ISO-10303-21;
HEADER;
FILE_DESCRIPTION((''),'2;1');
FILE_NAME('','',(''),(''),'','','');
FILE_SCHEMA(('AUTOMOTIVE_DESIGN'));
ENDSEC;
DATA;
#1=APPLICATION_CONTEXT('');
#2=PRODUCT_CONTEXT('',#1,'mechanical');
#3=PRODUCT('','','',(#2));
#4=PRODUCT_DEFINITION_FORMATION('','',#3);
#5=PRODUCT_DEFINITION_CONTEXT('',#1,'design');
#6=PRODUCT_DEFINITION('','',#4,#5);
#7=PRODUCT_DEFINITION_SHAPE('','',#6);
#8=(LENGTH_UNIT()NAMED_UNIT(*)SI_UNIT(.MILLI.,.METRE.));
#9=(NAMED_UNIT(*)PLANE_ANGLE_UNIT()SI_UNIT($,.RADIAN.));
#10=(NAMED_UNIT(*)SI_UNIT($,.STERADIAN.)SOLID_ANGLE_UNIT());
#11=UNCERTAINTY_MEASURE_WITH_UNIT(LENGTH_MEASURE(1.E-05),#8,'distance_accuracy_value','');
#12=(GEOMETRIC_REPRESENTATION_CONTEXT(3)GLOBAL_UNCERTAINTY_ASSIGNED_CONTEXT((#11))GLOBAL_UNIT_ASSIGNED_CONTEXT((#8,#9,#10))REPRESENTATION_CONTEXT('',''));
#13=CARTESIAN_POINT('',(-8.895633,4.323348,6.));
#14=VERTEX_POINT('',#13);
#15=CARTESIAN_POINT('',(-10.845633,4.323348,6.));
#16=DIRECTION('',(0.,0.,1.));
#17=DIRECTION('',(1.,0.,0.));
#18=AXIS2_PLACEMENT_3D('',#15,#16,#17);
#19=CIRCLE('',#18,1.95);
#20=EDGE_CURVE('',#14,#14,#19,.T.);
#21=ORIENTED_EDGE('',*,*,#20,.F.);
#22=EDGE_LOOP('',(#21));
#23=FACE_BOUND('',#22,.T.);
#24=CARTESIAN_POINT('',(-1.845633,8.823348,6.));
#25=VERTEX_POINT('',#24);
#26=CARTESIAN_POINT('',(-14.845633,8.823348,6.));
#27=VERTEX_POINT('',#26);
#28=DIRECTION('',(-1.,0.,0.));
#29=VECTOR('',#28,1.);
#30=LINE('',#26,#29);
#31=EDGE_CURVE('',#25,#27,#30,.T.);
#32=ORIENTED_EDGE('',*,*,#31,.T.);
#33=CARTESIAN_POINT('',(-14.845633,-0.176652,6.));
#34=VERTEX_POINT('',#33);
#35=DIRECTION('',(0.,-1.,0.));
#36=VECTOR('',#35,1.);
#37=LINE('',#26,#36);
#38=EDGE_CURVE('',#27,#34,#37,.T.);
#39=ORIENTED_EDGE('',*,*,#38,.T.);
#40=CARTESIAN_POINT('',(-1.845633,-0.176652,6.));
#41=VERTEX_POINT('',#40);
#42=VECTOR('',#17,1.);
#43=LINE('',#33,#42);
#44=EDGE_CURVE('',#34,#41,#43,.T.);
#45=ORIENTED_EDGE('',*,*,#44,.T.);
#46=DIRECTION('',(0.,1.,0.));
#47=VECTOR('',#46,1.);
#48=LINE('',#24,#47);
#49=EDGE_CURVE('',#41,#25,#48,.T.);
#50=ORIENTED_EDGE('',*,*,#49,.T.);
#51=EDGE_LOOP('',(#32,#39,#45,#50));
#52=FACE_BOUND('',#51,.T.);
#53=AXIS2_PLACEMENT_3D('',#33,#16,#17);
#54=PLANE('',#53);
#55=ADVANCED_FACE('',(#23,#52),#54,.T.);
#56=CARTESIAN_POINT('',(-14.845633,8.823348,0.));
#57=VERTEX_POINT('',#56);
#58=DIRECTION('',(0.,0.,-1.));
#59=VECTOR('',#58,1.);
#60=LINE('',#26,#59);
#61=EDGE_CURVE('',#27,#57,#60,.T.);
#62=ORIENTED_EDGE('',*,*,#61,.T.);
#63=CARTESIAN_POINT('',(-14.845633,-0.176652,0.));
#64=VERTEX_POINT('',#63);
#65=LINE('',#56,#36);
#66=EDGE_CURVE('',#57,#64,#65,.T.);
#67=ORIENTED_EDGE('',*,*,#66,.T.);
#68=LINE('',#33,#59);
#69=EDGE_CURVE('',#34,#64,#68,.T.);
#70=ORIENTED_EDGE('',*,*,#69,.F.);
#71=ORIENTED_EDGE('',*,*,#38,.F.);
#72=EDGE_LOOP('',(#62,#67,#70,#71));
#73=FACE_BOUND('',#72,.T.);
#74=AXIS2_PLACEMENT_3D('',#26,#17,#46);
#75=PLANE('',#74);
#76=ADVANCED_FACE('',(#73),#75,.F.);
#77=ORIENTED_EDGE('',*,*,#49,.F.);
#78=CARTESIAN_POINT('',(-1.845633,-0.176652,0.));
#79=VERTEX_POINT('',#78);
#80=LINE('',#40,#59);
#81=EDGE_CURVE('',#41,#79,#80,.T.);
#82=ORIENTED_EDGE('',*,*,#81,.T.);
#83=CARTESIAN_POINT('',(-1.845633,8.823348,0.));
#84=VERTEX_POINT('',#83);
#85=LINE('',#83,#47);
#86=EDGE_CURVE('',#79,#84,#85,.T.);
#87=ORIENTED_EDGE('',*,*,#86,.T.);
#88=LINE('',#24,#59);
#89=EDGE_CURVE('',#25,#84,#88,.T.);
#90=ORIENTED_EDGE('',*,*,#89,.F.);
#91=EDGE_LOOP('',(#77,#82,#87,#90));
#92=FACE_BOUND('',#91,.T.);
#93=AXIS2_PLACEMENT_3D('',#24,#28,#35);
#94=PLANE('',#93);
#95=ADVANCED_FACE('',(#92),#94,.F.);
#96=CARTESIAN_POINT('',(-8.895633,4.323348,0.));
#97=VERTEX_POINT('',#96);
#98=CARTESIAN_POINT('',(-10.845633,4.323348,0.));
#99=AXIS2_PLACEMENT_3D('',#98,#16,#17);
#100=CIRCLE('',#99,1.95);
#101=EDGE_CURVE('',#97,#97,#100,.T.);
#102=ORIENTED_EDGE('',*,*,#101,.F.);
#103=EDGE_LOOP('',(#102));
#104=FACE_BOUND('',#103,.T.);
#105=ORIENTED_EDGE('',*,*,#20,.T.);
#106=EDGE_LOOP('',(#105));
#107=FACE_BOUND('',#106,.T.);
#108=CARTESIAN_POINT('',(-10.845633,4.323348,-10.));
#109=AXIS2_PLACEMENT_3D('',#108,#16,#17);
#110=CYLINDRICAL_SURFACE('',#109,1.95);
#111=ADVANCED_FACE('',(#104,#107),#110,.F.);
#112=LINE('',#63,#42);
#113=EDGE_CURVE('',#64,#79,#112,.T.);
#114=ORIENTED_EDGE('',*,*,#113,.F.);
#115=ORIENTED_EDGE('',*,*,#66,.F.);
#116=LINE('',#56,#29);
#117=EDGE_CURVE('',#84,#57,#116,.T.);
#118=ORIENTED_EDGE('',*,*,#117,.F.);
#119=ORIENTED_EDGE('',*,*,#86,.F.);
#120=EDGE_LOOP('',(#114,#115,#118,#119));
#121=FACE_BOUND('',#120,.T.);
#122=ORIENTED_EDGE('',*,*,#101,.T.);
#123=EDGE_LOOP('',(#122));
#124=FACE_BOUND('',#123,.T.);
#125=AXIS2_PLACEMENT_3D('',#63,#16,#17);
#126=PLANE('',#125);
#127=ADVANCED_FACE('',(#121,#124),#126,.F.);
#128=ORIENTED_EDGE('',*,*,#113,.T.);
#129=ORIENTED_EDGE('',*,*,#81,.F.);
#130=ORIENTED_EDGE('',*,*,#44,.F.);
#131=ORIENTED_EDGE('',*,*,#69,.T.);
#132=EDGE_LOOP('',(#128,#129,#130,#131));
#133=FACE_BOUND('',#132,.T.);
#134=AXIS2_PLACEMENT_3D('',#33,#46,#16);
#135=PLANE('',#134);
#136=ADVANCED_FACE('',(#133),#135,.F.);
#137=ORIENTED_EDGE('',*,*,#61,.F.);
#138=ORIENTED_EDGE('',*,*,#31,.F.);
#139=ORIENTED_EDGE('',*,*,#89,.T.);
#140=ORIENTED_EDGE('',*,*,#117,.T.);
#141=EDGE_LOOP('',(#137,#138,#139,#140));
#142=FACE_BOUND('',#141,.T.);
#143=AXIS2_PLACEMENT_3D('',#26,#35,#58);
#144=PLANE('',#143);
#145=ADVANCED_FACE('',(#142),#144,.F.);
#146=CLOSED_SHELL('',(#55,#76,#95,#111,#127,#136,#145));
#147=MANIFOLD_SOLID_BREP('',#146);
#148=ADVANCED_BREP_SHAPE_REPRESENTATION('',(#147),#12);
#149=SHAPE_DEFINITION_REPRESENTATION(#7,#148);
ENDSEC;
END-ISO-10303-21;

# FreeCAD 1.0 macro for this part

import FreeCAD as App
import Part
import Sketcher
from FreeCAD import Vector

doc = App.newDocument("Part")
body = doc.addObject("PartDesign::Body", "Body")

# Sketch on XY plane
sketch1 = doc.addObject("Sketcher::SketchObject", "Sketch")
body.addObject(sketch1)
sketch1.AttachmentSupport = (doc.XY_Plane, [""])
sketch1.MapMode = "FlatFace"
sketch1.addGeometry([
    Part.LineSegment(Vector(-15, 9, 0), Vector(-15, 0, 0)),
    Part.LineSegment(Vector(-15, 0, 0), Vector(-2, 0, 0)),
    Part.LineSegment(Vector(-2, 0, 0), Vector(-2, 9, 0)),
    Part.LineSegment(Vector(-2, 9, 0), Vector(-15, 9, 0)),
], False)
sketch1.addConstraint([
    Sketcher.Constraint("Coincident", 0, 2, 1, 1),
    Sketcher.Constraint("Coincident", 1, 2, 2, 1),
    Sketcher.Constraint("Coincident", 2, 2, 3, 1),
    Sketcher.Constraint("Coincident", 3, 2, 0, 1),
    Sketcher.Constraint("Vertical", 0),
    Sketcher.Constraint("Horizontal", 1),
    Sketcher.Constraint("Vertical", 2),
    Sketcher.Constraint("Horizontal", 3),
    Sketcher.Constraint("DistanceX", 1, 1, 1, 2, 13.0),
    Sketcher.Constraint("DistanceY", 0, 2, 0, 1, 9.0),
    Sketcher.Constraint("DistanceX", 0, 2, -1, 1, 14.845633),
    Sketcher.Constraint("DistanceY", 0, 2, -1, 1, 0.176652),
])
pad1 = doc.addObject("PartDesign::Pad", "Pad")
body.addObject(pad1)
pad1.Profile = sketch1
pad1.Length = 6

# Sketch on XY plane
sketch2 = doc.addObject("Sketcher::SketchObject", "Sketch001")
body.addObject(sketch2)
sketch2.AttachmentSupport = (doc.XY_Plane, [""])
sketch2.MapMode = "FlatFace"
sketch2.AttachmentOffset = App.Placement(Vector(0, 0, 6), App.Rotation())
sketch2.addGeometry(Part.Circle(Vector(-10.8, 4.3, 0), Vector(0, 0, 1), 1.9), False)
sketch2.addConstraint([
    Sketcher.Constraint("Diameter", 0, 3.9),
    Sketcher.Constraint("DistanceX", 0, 3, -1, 1, 10.845633),
    Sketcher.Constraint("DistanceY", -1, 1, 0, 3, 4.323348),
])
pocket1 = doc.addObject("PartDesign::Pocket", "Pocket")
body.addObject(pocket1)
pocket1.Profile = sketch2
pocket1.Length = 16

doc.recompute()
